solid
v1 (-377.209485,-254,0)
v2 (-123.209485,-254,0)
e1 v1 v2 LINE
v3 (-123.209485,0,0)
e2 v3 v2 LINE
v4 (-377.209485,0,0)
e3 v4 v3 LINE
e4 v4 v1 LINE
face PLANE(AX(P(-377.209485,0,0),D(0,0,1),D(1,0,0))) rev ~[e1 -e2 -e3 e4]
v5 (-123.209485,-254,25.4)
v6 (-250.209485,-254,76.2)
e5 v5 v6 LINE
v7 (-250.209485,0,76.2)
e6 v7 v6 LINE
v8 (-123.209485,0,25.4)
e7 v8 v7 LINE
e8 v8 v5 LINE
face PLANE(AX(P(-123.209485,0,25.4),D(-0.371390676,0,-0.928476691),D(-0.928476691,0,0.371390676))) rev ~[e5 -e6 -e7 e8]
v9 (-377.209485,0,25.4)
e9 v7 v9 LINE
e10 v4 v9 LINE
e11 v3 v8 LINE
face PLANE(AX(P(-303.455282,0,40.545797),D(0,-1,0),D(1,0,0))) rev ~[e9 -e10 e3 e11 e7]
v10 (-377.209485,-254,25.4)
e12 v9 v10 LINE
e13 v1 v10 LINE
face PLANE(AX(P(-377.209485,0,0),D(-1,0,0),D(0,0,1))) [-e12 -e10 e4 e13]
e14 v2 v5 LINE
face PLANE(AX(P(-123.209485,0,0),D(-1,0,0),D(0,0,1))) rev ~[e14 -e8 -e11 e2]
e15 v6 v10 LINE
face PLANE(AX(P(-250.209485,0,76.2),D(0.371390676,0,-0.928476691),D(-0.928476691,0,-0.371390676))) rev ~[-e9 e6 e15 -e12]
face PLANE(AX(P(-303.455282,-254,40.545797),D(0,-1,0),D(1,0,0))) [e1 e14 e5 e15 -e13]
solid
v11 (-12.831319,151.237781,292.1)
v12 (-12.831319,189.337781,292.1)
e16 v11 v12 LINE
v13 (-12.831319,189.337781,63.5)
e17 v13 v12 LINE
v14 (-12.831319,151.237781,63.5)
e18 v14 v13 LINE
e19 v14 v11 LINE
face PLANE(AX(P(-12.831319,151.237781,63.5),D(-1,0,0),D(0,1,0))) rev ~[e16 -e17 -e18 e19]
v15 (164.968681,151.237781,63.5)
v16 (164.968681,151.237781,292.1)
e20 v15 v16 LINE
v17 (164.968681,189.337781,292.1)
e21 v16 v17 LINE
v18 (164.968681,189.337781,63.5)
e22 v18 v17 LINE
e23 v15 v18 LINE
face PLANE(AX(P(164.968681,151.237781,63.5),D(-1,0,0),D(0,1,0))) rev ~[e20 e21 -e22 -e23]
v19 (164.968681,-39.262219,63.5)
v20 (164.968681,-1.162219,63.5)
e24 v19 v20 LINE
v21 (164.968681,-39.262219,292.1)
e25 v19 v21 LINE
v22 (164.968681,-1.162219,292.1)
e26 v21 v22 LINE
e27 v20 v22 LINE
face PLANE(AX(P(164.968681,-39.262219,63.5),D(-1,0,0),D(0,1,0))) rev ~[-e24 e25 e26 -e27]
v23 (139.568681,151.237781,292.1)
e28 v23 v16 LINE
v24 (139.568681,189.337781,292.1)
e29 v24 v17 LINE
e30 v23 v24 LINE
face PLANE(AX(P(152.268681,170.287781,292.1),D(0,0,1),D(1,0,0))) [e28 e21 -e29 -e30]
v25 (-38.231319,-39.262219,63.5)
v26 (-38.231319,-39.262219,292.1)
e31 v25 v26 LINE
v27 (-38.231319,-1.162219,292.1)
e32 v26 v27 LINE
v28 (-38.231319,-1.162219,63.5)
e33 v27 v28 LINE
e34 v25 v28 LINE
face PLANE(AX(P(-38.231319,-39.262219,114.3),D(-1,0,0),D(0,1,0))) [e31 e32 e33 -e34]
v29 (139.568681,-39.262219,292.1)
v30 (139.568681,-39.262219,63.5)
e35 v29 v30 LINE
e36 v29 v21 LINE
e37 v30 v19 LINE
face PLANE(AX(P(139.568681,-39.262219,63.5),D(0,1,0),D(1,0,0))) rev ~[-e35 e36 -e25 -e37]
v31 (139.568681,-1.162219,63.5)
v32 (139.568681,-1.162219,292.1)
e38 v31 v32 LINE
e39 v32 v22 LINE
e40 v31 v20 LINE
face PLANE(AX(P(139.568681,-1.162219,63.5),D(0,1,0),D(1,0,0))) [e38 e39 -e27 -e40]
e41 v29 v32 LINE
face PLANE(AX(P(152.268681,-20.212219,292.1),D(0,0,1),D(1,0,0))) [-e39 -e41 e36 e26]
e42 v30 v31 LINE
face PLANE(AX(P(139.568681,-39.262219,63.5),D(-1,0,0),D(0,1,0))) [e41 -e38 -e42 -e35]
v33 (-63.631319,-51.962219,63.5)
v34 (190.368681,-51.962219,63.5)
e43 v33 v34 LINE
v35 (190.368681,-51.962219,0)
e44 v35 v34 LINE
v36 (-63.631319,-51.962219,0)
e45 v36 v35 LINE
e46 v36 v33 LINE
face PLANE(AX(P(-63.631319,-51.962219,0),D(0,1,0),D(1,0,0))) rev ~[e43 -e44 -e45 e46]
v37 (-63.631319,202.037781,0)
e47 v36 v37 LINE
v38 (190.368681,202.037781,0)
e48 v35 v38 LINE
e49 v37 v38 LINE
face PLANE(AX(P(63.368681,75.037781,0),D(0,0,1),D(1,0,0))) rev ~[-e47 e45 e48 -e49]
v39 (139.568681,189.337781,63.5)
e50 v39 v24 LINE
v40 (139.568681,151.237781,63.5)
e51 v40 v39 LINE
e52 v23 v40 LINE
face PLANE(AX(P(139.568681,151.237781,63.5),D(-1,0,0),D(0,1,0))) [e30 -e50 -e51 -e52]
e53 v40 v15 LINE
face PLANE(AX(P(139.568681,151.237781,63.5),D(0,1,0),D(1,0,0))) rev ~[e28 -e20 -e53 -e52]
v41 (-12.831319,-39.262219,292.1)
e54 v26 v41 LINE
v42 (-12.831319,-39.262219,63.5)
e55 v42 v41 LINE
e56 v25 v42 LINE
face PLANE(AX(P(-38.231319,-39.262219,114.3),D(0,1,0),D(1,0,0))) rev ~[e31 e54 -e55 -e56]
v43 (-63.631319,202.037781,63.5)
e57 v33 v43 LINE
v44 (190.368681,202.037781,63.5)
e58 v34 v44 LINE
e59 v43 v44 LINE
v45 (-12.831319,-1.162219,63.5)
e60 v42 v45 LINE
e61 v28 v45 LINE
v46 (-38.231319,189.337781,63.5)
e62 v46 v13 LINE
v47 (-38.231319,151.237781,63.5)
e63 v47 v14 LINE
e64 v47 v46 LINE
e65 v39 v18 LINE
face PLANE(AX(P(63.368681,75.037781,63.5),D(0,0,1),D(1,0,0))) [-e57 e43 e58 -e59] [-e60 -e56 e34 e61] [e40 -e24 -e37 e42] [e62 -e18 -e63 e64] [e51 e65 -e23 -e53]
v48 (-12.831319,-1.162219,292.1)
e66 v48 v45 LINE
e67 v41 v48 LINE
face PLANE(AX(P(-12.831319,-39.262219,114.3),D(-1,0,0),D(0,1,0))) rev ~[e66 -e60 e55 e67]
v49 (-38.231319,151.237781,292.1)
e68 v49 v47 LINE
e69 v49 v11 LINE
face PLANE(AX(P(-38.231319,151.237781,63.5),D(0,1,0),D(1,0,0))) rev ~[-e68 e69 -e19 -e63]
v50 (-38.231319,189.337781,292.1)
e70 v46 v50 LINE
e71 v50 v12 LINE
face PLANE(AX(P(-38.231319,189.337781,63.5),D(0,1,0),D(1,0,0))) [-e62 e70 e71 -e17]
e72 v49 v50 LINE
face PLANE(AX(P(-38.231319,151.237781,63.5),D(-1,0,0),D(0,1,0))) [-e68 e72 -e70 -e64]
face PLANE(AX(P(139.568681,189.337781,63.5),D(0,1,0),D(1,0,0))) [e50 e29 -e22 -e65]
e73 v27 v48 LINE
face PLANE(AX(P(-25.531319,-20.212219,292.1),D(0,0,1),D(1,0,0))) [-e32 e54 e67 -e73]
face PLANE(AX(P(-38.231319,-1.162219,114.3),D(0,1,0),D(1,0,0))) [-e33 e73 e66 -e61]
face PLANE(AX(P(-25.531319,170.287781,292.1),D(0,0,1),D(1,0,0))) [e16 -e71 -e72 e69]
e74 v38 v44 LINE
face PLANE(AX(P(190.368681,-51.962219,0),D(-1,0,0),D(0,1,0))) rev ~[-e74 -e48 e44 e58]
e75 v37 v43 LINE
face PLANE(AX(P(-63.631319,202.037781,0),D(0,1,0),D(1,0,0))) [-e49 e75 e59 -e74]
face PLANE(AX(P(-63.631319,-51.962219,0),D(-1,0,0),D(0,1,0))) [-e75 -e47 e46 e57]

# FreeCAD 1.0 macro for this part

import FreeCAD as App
import Part
import Sketcher
Q = App.Units.Quantity


def add_polygon(sketch, points):
    """Adds a closed chain of lines whose ends are joined by coincident constraints."""
    first, n = sketch.GeometryCount, len(points)
    for a, b in zip(points, points[1:] + points[:1]):
        sketch.addGeometry(Part.LineSegment(App.Vector(*a, 0), App.Vector(*b, 0)), False)
    for i in range(n):
        sketch.addConstraint(Sketcher.Constraint("Coincident", first + i, 2, first + (i + 1) % n, 1))

doc = App.newDocument("Part")
body = doc.addObject("PartDesign::Body", "Body")

sketch1 = body.newObject("Sketcher::SketchObject", "Sketch")
sketch1.AttachmentSupport = (doc.getObject("XY_Plane"), [""])
sketch1.MapMode = "FlatFace"
add_polygon(sketch1, [(-64, 202), (-64, -52), (190, -52), (190, 202)])
sketch1.addConstraint(Sketcher.Constraint("Vertical", 0))
sketch1.addConstraint(Sketcher.Constraint("Horizontal", 1))
sketch1.addConstraint(Sketcher.Constraint("Vertical", 2))
sketch1.addConstraint(Sketcher.Constraint("Horizontal", 3))
sketch1.addConstraint(Sketcher.Constraint("Equal", 3, 0))
sketch1.addConstraint(Sketcher.Constraint("DistanceX", 1, 1, 1, 2, Q("10 in")))
sketch1.addConstraint(Sketcher.Constraint("DistanceX", 0, 2, -1, 1, 63.631319))
sketch1.addConstraint(Sketcher.Constraint("DistanceY", 0, 2, -1, 1, 51.962219))
pad1 = body.newObject("PartDesign::Pad", "Pad")
pad1.Profile = sketch1
pad1.Length = Q("2.5 in")

sketch2 = body.newObject("Sketcher::SketchObject", "Sketch001")
sketch2.AttachmentSupport = (doc.getObject("XY_Plane"), [""])
sketch2.MapMode = "FlatFace"
sketch2.AttachmentOffset = App.Placement(App.Vector(0, 0, 2.5 * 25.4), App.Rotation())
add_polygon(sketch2, [(-38, 189), (-38, 151), (-13, 151), (-13, 189)])
add_polygon(sketch2, [(-38, -1), (-38, -39), (-13, -39), (-13, -1)])
add_polygon(sketch2, [(140, -1), (140, -39), (165, -39), (165, -1)])
add_polygon(sketch2, [(140, 189), (140, 151), (165, 151), (165, 189)])
sketch2.addConstraint(Sketcher.Constraint("Vertical", 0))
sketch2.addConstraint(Sketcher.Constraint("Horizontal", 1))
sketch2.addConstraint(Sketcher.Constraint("Vertical", 2))
sketch2.addConstraint(Sketcher.Constraint("Horizontal", 3))
sketch2.addConstraint(Sketcher.Constraint("Vertical", 4))
sketch2.addConstraint(Sketcher.Constraint("Horizontal", 5))
sketch2.addConstraint(Sketcher.Constraint("Vertical", 6))
sketch2.addConstraint(Sketcher.Constraint("Horizontal", 7))
sketch2.addConstraint(Sketcher.Constraint("Vertical", 8))
sketch2.addConstraint(Sketcher.Constraint("Horizontal", 9))
sketch2.addConstraint(Sketcher.Constraint("Vertical", 10))
sketch2.addConstraint(Sketcher.Constraint("Horizontal", 11))
sketch2.addConstraint(Sketcher.Constraint("Vertical", 12))
sketch2.addConstraint(Sketcher.Constraint("Horizontal", 13))
sketch2.addConstraint(Sketcher.Constraint("Vertical", 14))
sketch2.addConstraint(Sketcher.Constraint("Horizontal", 15))
sketch2.addConstraint(Sketcher.Constraint("Horizontal", 5, 2, 8, 2))
sketch2.addConstraint(Sketcher.Constraint("Horizontal", 7, 2, 10, 2))
sketch2.addConstraint(Sketcher.Constraint("Horizontal", 1, 2, 12, 2))
sketch2.addConstraint(Sketcher.Constraint("Horizontal", 3, 2, 14, 2))
sketch2.addConstraint(Sketcher.Constraint("Vertical", 3, 2, 4, 2))
sketch2.addConstraint(Sketcher.Constraint("Vertical", 2, 2, 5, 2))
sketch2.addConstraint(Sketcher.Constraint("Vertical", 11, 2, 12, 2))
sketch2.addConstraint(Sketcher.Constraint("Vertical", 10, 2, 13, 2))
sketch2.addConstraint(Sketcher.Constraint("Equal", 7, 9))
sketch2.addConstraint(Sketcher.Constraint("Equal", 2, 4))
sketch2.addConstraint(Sketcher.Constraint("DistanceX", 1, 1, 1, 2, Q("1 in")))
sketch2.addConstraint(Sketcher.Constraint("DistanceY", 0, 2, 0, 1, Q("1.5 in")))
sketch2.addConstraint(Sketcher.Constraint("DistanceY", 4, 2, 3, 2, Q("9 in")))
sketch2.addConstraint(Sketcher.Constraint("DistanceX", 5, 2, 8, 2, Q("6 in")))
sketch2.addConstraint(Sketcher.Constraint("DistanceX", 0, 2, -1, 1, 38.231319))
sketch2.addConstraint(Sketcher.Constraint("DistanceY", -1, 1, 0, 2, 151.237781))
pad2 = body.newObject("PartDesign::Pad", "Pad001")
pad2.Profile = sketch2
pad2.Length = Q("2 in")

sketch3 = body.newObject("Sketcher::SketchObject", "Sketch002")
sketch3.AttachmentSupport = (doc.getObject("XY_Plane"), [""])
sketch3.MapMode = "FlatFace"
sketch3.AttachmentOffset = App.Placement(App.Vector(0, 0, 4.5 * 25.4), App.Rotation())
add_polygon(sketch3, [(-38, -1), (-38, -39), (-13, -39), (-13, -1)])
add_polygon(sketch3, [(140, -1), (140, -39), (165, -39), (165, -1)])
add_polygon(sketch3, [(140, 189), (140, 151), (165, 151), (165, 189)])
add_polygon(sketch3, [(-38, 189), (-38, 151), (-13, 151), (-13, 189)])
sketch3.addConstraint(Sketcher.Constraint("Vertical", 0))
sketch3.addConstraint(Sketcher.Constraint("Horizontal", 1))
sketch3.addConstraint(Sketcher.Constraint("Vertical", 2))
sketch3.addConstraint(Sketcher.Constraint("Horizontal", 3))
sketch3.addConstraint(Sketcher.Constraint("Vertical", 4))
sketch3.addConstraint(Sketcher.Constraint("Horizontal", 5))
sketch3.addConstraint(Sketcher.Constraint("Vertical", 6))
sketch3.addConstraint(Sketcher.Constraint("Horizontal", 7))
sketch3.addConstraint(Sketcher.Constraint("Vertical", 8))
sketch3.addConstraint(Sketcher.Constraint("Horizontal", 9))
sketch3.addConstraint(Sketcher.Constraint("Vertical", 10))
sketch3.addConstraint(Sketcher.Constraint("Horizontal", 11))
sketch3.addConstraint(Sketcher.Constraint("Vertical", 12))
sketch3.addConstraint(Sketcher.Constraint("Horizontal", 13))
sketch3.addConstraint(Sketcher.Constraint("Vertical", 14))
sketch3.addConstraint(Sketcher.Constraint("Horizontal", 15))
sketch3.addConstraint(Sketcher.Constraint("Horizontal", 1, 2, 4, 2))
sketch3.addConstraint(Sketcher.Constraint("Horizontal", 3, 2, 6, 2))
sketch3.addConstraint(Sketcher.Constraint("Horizontal", 9, 2, 12, 2))
sketch3.addConstraint(Sketcher.Constraint("Horizontal", 11, 2, 14, 2))
sketch3.addConstraint(Sketcher.Constraint("Vertical", 7, 2, 8, 2))
sketch3.addConstraint(Sketcher.Constraint("Vertical", 6, 2, 9, 2))
sketch3.addConstraint(Sketcher.Constraint("Vertical", 3, 2, 12, 2))
sketch3.addConstraint(Sketcher.Constraint("Vertical", 2, 2, 13, 2))
sketch3.addConstraint(Sketcher.Constraint("Equal", 3, 5))
sketch3.addConstraint(Sketcher.Constraint("Equal", 6, 8))
sketch3.addConstraint(Sketcher.Constraint("DistanceX", 1, 1, 1, 2, Q("1 in")))
sketch3.addConstraint(Sketcher.Constraint("DistanceY", 0, 2, 0, 1, Q("1.5 in")))
sketch3.addConstraint(Sketcher.Constraint("DistanceX", 1, 2, 4, 2, Q("6 in")))
sketch3.addConstraint(Sketcher.Constraint("DistanceY", 7, 2, 8, 2, Q("6 in")))
sketch3.addConstraint(Sketcher.Constraint("DistanceX", 0, 2, -1, 1, 38.231319))
sketch3.addConstraint(Sketcher.Constraint("DistanceY", 0, 2, -1, 1, 39.262219))
pad3 = body.newObject("PartDesign::Pad", "Pad002")
pad3.Profile = sketch3
pad3.Length = Q("7 in")
body2 = doc.addObject("PartDesign::Body", "Body001")

sketch4 = body2.newObject("Sketcher::SketchObject", "Sketch003")
sketch4.AttachmentSupport = (doc.getObject("XZ_Plane001"), [""])
sketch4.MapMode = "FlatFace"
add_polygon(sketch4, [(-123, 0), (-123, 25), (-250, 76), (-377, 25), (-377, 0)])
sketch4.addConstraint(Sketcher.Constraint("Vertical", 0))
sketch4.addConstraint(Sketcher.Constraint("Vertical", 3))
sketch4.addConstraint(Sketcher.Constraint("Horizontal", 4))
sketch4.addConstraint(Sketcher.Constraint("PointOnObject", 3, 2, -1))
sketch4.addConstraint(Sketcher.Constraint("Horizontal", 0, 2, 2, 2))
sketch4.addConstraint(Sketcher.Constraint("Equal", 1, 2))
sketch4.addConstraint(Sketcher.Constraint("DistanceX", 4, 1, 4, 2, Q("10 in")))
sketch4.addConstraint(Sketcher.Constraint("DistanceY", 0, 1, 0, 2, Q("1 in")))
sketch4.addConstraint(Sketcher.Constraint("DistanceY", -1, 1, 1, 2, Q("3 in")))
sketch4.addConstraint(Sketcher.Constraint("DistanceX", 0, 2, -1, 1, 123.209485))
pad4 = body2.newObject("PartDesign::Pad", "Pad003")
pad4.Profile = sketch4
pad4.Length = Q("10 in")

doc.recompute()
